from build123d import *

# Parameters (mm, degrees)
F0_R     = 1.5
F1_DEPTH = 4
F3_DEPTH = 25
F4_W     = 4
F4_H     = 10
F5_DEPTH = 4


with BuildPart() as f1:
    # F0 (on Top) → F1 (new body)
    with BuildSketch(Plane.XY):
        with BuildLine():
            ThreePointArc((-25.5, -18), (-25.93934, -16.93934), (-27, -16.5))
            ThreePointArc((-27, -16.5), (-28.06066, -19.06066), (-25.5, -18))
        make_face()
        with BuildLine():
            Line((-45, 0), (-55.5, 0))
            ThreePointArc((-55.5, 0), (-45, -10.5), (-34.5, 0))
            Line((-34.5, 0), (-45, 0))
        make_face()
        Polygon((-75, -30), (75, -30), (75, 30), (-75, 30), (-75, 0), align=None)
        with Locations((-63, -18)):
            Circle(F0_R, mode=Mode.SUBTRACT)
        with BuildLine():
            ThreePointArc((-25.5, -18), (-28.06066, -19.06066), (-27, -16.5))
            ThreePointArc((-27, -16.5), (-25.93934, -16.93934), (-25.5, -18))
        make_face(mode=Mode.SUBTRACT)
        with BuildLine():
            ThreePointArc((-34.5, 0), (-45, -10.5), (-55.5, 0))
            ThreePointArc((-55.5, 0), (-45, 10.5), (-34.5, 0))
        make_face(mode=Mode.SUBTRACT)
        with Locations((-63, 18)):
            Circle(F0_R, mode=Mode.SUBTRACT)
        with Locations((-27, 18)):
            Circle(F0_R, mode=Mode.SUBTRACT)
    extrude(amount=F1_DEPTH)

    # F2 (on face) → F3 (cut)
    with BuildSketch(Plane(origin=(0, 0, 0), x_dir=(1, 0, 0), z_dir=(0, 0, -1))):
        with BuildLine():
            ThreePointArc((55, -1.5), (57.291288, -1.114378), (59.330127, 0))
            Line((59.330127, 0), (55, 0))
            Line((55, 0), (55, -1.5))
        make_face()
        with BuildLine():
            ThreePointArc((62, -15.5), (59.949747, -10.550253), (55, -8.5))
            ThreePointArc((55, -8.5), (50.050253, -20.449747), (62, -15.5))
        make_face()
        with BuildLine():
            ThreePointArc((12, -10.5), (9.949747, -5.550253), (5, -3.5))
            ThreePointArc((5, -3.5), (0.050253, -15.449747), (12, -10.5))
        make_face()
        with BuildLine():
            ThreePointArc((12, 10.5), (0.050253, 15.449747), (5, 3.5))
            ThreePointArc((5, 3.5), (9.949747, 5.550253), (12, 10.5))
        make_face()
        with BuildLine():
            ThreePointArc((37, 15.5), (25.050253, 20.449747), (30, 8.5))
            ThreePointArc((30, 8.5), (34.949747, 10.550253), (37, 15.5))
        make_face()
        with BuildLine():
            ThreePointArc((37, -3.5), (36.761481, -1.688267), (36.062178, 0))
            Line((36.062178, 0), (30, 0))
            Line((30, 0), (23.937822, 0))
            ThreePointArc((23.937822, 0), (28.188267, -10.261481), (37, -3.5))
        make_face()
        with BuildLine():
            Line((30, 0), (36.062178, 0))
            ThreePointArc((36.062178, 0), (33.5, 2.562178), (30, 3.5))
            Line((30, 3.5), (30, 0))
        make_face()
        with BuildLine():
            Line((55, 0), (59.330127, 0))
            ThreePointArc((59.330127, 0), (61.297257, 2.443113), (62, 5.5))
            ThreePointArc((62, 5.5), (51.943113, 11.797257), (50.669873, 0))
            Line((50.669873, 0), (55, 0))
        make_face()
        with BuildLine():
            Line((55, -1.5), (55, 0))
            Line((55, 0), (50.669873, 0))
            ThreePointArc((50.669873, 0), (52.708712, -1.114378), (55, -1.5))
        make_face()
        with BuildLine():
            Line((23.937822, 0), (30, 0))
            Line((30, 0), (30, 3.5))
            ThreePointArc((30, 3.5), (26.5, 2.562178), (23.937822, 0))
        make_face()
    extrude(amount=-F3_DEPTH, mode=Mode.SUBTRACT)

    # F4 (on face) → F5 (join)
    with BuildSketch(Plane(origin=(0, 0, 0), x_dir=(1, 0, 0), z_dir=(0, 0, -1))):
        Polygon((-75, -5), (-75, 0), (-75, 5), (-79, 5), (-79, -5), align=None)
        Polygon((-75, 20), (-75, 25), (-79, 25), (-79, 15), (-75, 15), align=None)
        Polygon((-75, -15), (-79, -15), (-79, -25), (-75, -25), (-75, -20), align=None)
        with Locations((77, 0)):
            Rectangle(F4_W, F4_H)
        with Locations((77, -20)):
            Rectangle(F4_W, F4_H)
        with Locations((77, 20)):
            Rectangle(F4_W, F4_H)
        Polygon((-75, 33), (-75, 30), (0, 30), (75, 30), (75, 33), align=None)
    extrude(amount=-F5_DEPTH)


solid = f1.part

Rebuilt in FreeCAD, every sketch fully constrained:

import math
import FreeCAD as App
import Part
import Sketcher
Q = App.Units.Quantity


def add_polygon(sketch, points):
    """Adds a closed chain of lines whose ends are joined by coincident constraints."""
    first, n = sketch.GeometryCount, len(points)
    for a, b in zip(points, points[1:] + points[:1]):
        sketch.addGeometry(Part.LineSegment(App.Vector(*a, 0), App.Vector(*b, 0)), False)
    for i in range(n):
        sketch.addConstraint(Sketcher.Constraint("Coincident", first + i, 2, first + (i + 1) % n, 1))

doc = App.newDocument("Part")
params = doc.addObject("Spreadsheet::Sheet", "Params")
for row, (alias, value) in enumerate([
    ("sketch1_diameter", "3 mm"),
    ("sketch1_diameter2", "21 mm"),
    ("sketch1_width", "150 mm"),
    ("sketch1_height", "60 mm"),
    ("pad1_length", "4 mm"),
    ("sketch2_radius", "7 mm"),
    ("pocket1_length", "25 mm"),
    ("sketch3_width", "4 mm"),
    ("sketch3_width2", "150 mm"),
    ("sketch3_height", "10 mm"),
    ("sketch3_height2", "3 mm"),
    ("pad2_length", "4 mm"),
], start=1):
    params.set(f"A{row}", alias)
    params.set(f"B{row}", "=" + value)
    params.setAlias(f"B{row}", alias)

body = doc.addObject("PartDesign::Body", "Body")

# Sketch on XY plane
sketch1 = body.newObject("Sketcher::SketchObject", "Sketch")
sketch1.AttachmentSupport = (doc.getObject("XY_Plane"), [""])
sketch1.MapMode = "FlatFace"
add_polygon(sketch1, [(-75, -30), (75, -30), (75, 30), (-75, 30)])  # lines 0-3
sketch1.addGeometry(Part.Circle(App.Vector(-63, -18, 0), App.Vector(0, 0, 1), 1.5), False)  # 4
sketch1.addGeometry(Part.ArcOfCircle(Part.Circle(App.Vector(-27.000001, -18.000001, 0), App.Vector(0, 0, 1), 1.500001), math.radians(0.000022), math.radians(89.999978)), False)  # 5
sketch1.addGeometry(Part.ArcOfCircle(Part.Circle(App.Vector(-27, -18, 0), App.Vector(0, 0, 1), 1.5), math.radians(90.000004), math.radians(359.999996)), False)  # 6
sketch1.addGeometry(Part.Circle(App.Vector(-45, 0, 0), App.Vector(0, 0, 1), 10.5), False)  # 7
sketch1.addGeometry(Part.Circle(App.Vector(-63, 18, 0), App.Vector(0, 0, 1), 1.5), False)  # 8
sketch1.addGeometry(Part.Circle(App.Vector(-27, 18, 0), App.Vector(0, 0, 1), 1.5), False)  # 9
sketch1.addConstraint(Sketcher.Constraint("Tangent", 5, 1, 6, 2))
sketch1.addConstraint(Sketcher.Constraint("Coincident", 6, 1, 5, 2))
sketch1.addConstraint(Sketcher.Constraint("Horizontal", 0))
sketch1.addConstraint(Sketcher.Constraint("Vertical", 1))
sketch1.addConstraint(Sketcher.Constraint("Horizontal", 2))
sketch1.addConstraint(Sketcher.Constraint("Vertical", 3))
sketch1.addConstraint(Sketcher.Constraint("Equal", 4, 5))
sketch1.addConstraint(Sketcher.Constraint("Equal", 6, 8))
sketch1.addConstraint(Sketcher.Constraint("Equal", 8, 9))
sketch1.addConstraint(Sketcher.Constraint("Symmetric", 0, 2, 2, 2, -1, 1))
sketch1.addConstraint(Sketcher.Constraint("Symmetric", 4, 3, 8, 3, -1))
sketch1.addConstraint(Sketcher.Constraint("Symmetric", 5, 3, 9, 3, -1))
sketch1.addConstraint(Sketcher.Constraint("PointOnObject", 7, 3, -1))
sketch1.addConstraint(Sketcher.Constraint("Horizontal", 4, 3, 5, 3))
sketch1.addConstraint(Sketcher.Constraint("Horizontal", 6, 3, 5, 1))
sketch1.addConstraint(Sketcher.Constraint("Vertical", 9, 3, 6, 1))
sketch1.addConstraint(Sketcher.Constraint("Diameter", 4, Q("3 mm")))
sketch1.addConstraint(Sketcher.Constraint("Diameter", 7, Q("21 mm")))
sketch1.addConstraint(Sketcher.Constraint("DistanceX", 0, 1, 0, 2, Q("150 mm")))
sketch1.addConstraint(Sketcher.Constraint("DistanceY", 1, 1, 1, 2, Q("60 mm")))
sketch1.addConstraint(Sketcher.Constraint("DistanceX", 4, 3, -1, 1, Q("63 mm")))
sketch1.addConstraint(Sketcher.Constraint("DistanceY", 4, 3, -1, 1, Q("18 mm")))
sketch1.addConstraint(Sketcher.Constraint("DistanceX", 5, 3, -1, 1, Q("27.000001 mm")))
sketch1.addConstraint(Sketcher.Constraint("DistanceX", 7, 3, -1, 1, Q("45 mm")))
sketch1.setExpression("Constraints[20]", "Params.sketch1_diameter")
sketch1.setExpression("Constraints[21]", "Params.sketch1_diameter2")
sketch1.setExpression("Constraints[22]", "Params.sketch1_width")
sketch1.setExpression("Constraints[23]", "Params.sketch1_height")
pad1 = body.newObject("PartDesign::Pad", "Pad")
pad1.Profile = sketch1
pad1.setExpression("Length", "Params.pad1_length")

# Sketch on XY plane
sketch2 = body.newObject("Sketcher::SketchObject", "Sketch001")
sketch2.AttachmentSupport = (doc.getObject("XY_Plane"), [""])
sketch2.MapMode = "FlatFace"
sketch2.addGeometry(Part.ArcOfCircle(Part.Circle(App.Vector(54.999999, -5.500004, 0), App.Vector(0, 0, 1), 7.000004), math.radians(51.786799), math.radians(89.99999)), False)
sketch2.addGeometry(Part.ArcOfCircle(Part.Circle(App.Vector(55.000003, -5.499999, 0), App.Vector(0, 0, 1), 6.999997), math.radians(-0.00001), math.radians(51.7868)), False)
sketch2.addGeometry(Part.ArcOfCircle(Part.Circle(App.Vector(55, -5.5, 0), App.Vector(0, 0, 1), 7), math.radians(128.213209), math.radians(360.000001)), False)
sketch2.addGeometry(Part.ArcOfCircle(Part.Circle(App.Vector(55.000001, -5.500004, 0), App.Vector(0, 0, 1), 7.000004), math.radians(90.00001), math.radians(128.213201)), False)
sketch2.addGeometry(Part.ArcOfCircle(Part.Circle(App.Vector(54.999998, 15.500002, 0), App.Vector(0, 0, 1), 7.000002), math.radians(-89.999987), math.radians(-0.000013)), False)
sketch2.addGeometry(Part.ArcOfCircle(Part.Circle(App.Vector(55, 15.5, 0), App.Vector(0, 0, 1), 7), math.radians(0.000002), math.radians(269.999998)), False)
sketch2.addGeometry(Part.ArcOfCircle(Part.Circle(App.Vector(4.999998, 10.500002, 0), App.Vector(0, 0, 1), 7.000002), math.radians(-89.999987), math.radians(-0.000013)), False)
sketch2.addGeometry(Part.ArcOfCircle(Part.Circle(App.Vector(5, 10.5, 0), App.Vector(0, 0, 1), 7), math.radians(0.000002), math.radians(269.999998)), False)
sketch2.addGeometry(Part.ArcOfCircle(Part.Circle(App.Vector(5, -10.5, 0), App.Vector(0, 0, 1), 7), math.radians(90.000002), math.radians(359.999998)), False)
sketch2.addGeometry(Part.ArcOfCircle(Part.Circle(App.Vector(4.999998, -10.500002, 0), App.Vector(0, 0, 1), 7.000002), math.radians(0.000013), math.radians(89.999987)), False)
sketch2.addGeometry(Part.ArcOfCircle(Part.Circle(App.Vector(30, -15.5, 0), App.Vector(0, 0, 1), 7), math.radians(90.000002), math.radians(359.999998)), False)
sketch2.addGeometry(Part.ArcOfCircle(Part.Circle(App.Vector(29.999998, -15.500002, 0), App.Vector(0, 0, 1), 7.000002), math.radians(0.000013), math.radians(89.999987)), False)
sketch2.addGeometry(Part.ArcOfCircle(Part.Circle(App.Vector(30.000001, 3.499999, 0), App.Vector(0, 0, 1), 6.999999), math.radians(-30), math.radians(0.000006)), False)
sketch2.addGeometry(Part.ArcOfCircle(Part.Circle(App.Vector(30, 3.5, 0), App.Vector(0, 0, 1), 7), math.radians(-90.000003), math.radians(-29.999998)), False)
sketch2.addGeometry(Part.ArcOfCircle(Part.Circle(App.Vector(30, 3.5, 0), App.Vector(0, 0, 1), 7), math.radians(-150.000002), math.radians(-89.999997)), False)
sketch2.addGeometry(Part.ArcOfCircle(Part.Circle(App.Vector(30, 3.5, 0), App.Vector(0, 0, 1), 7), math.radians(0), math.radians(210)), False)
sketch2.addConstraint(Sketcher.Constraint("Tangent", 0, 1, 1, 2))
sketch2.addConstraint(Sketcher.Constraint("Tangent", 1, 1, 2, 2))
sketch2.addConstraint(Sketcher.Constraint("Tangent", 2, 1, 3, 2))
sketch2.addConstraint(Sketcher.Constraint("Tangent", 3, 1, 0, 2))
sketch2.addConstraint(Sketcher.Constraint("Tangent", 4, 1, 5, 2))
sketch2.addConstraint(Sketcher.Constraint("Coincident", 5, 1, 4, 2))
sketch2.addConstraint(Sketcher.Constraint("Tangent", 6, 1, 7, 2))
sketch2.addConstraint(Sketcher.Constraint("Coincident", 7, 1, 6, 2))
sketch2.addConstraint(Sketcher.Constraint("Tangent", 8, 1, 9, 2))
sketch2.addConstraint(Sketcher.Constraint("Coincident", 9, 1, 8, 2))
sketch2.addConstraint(Sketcher.Constraint("Tangent", 10, 1, 11, 2))
sketch2.addConstraint(Sketcher.Constraint("Coincident", 11, 1, 10, 2))
sketch2.addConstraint(Sketcher.Constraint("Tangent", 12, 1, 13, 2))
sketch2.addConstraint(Sketcher.Constraint("Tangent", 13, 1, 14, 2))
sketch2.addConstraint(Sketcher.Constraint("Tangent", 14, 1, 15, 2))
sketch2.addConstraint(Sketcher.Constraint("Tangent", 15, 1, 12, 2))
sketch2.addConstraint(Sketcher.Constraint("Equal", 0, 3))
sketch2.addConstraint(Sketcher.Constraint("Equal", 3, 4))
sketch2.addConstraint(Sketcher.Constraint("Equal", 5, 6))
sketch2.addConstraint(Sketcher.Constraint("Equal", 7, 8))
sketch2.addConstraint(Sketcher.Constraint("Equal", 9, 10))
sketch2.addConstraint(Sketcher.Constraint("Equal", 10, 12))
sketch2.addConstraint(Sketcher.Constraint("Equal", 12, 13))
sketch2.addConstraint(Sketcher.Constraint("Symmetric", 6, 3, 8, 3, -1))
sketch2.addConstraint(Sketcher.Constraint("PointOnObject", 0, 1, -1))
sketch2.addConstraint(Sketcher.Constraint("PointOnObject", 2, 1, -1))
sketch2.addConstraint(Sketcher.Constraint("PointOnObject", 12, 1, -1))
sketch2.addConstraint(Sketcher.Constraint("PointOnObject", 14, 1, -1))
sketch2.addConstraint(Sketcher.Constraint("Horizontal", 2, 3, 1, 1))
sketch2.addConstraint(Sketcher.Constraint("Horizontal", 4, 3, 5, 1))
sketch2.addConstraint(Sketcher.Constraint("Horizontal", 15, 3, 6, 1))
sketch2.addConstraint(Sketcher.Constraint("Horizontal", 6, 3, 7, 1))
sketch2.addConstraint(Sketcher.Constraint("Horizontal", 8, 3, 9, 1))
sketch2.addConstraint(Sketcher.Constraint("Horizontal", 10, 3, 11, 1))
sketch2.addConstraint(Sketcher.Constraint("Horizontal", 8, 1, 13, 1))
sketch2.addConstraint(Sketcher.Constraint("Horizontal", 6, 1, 15, 1))
sketch2.addConstraint(Sketcher.Constraint("Vertical", 2, 3, 4, 3))
sketch2.addConstraint(Sketcher.Constraint("Vertical", 10, 3, 12, 3))
sketch2.addConstraint(Sketcher.Constraint("Vertical", 5, 3, 3, 1))
sketch2.addConstraint(Sketcher.Constraint("Vertical", 3, 1, 4, 1))
sketch2.addConstraint(Sketcher.Constraint("Vertical", 9, 3, 6, 1))
sketch2.addConstraint(Sketcher.Constraint("Vertical", 6, 1, 8, 1))
sketch2.addConstraint(Sketcher.Constraint("Vertical", 15, 3, 10, 1))
sketch2.addConstraint(Sketcher.Constraint("Vertical", 10, 1, 13, 1))
sketch2.addConstraint(Sketcher.Constraint("Radius", 2, Q("7 mm")))
sketch2.addConstraint(Sketcher.Constraint("DistanceX", -1, 1, 0, 3, Q("54.999999 mm")))
sketch2.addConstraint(Sketcher.Constraint("DistanceX", -1, 1, 6, 3, Q("4.999998 mm")))
sketch2.addConstraint(Sketcher.Constraint("DistanceX", -1, 1, 10, 3, Q("30 mm")))
sketch2.addConstraint(Sketcher.Constraint("DistanceY", 1, 3, 4, 3, Q("21 mm")))
sketch2.addConstraint(Sketcher.Constraint("DistanceY", 6, 3, 4, 3, Q("5 mm")))
sketch2.addConstraint(Sketcher.Constraint("DistanceY", 10, 3, 8, 3, Q("5 mm")))
sketch2.setExpression("Constraints[44]", "Params.sketch2_radius")
pocket1 = body.newObject("PartDesign::Pocket", "Pocket")
pocket1.Profile = sketch2
pocket1.setExpression("Length", "Params.pocket1_length")
pocket1.Reversed = True

# Sketch on XY plane
sketch3 = body.newObject("Sketcher::SketchObject", "Sketch002")
sketch3.AttachmentSupport = (doc.getObject("XY_Plane"), [""])
sketch3.MapMode = "FlatFace"
add_polygon(sketch3, [(-75, 5), (-75, -5), (-79, -5), (-79, 5)])  # lines 0-3
add_polygon(sketch3, [(-75, -25), (-79, -25), (-79, -15), (-75, -15)])  # lines 4-7
add_polygon(sketch3, [(-75, 15), (-79, 15), (-79, 25), (-75, 25)])  # lines 8-11
add_polygon(sketch3, [(75, -5), (75, 5), (79, 5), (79, -5)])  # lines 12-15
add_polygon(sketch3, [(75, 15), (75, 25), (79, 25), (79, 15)])  # lines 16-19
add_polygon(sketch3, [(75, -25), (75, -15), (79, -15), (79, -25)])  # lines 20-23
add_polygon(sketch3, [(-75, -33), (-75, -30), (75, -30), (75, -33)])  # lines 24-27
sketch3.addConstraint(Sketcher.Constraint("Vertical", 0))
sketch3.addConstraint(Sketcher.Constraint("Horizontal", 1))
sketch3.addConstraint(Sketcher.Constraint("Vertical", 2))
sketch3.addConstraint(Sketcher.Constraint("Horizontal", 3))
sketch3.addConstraint(Sketcher.Constraint("Horizontal", 4))
sketch3.addConstraint(Sketcher.Constraint("Vertical", 5))
sketch3.addConstraint(Sketcher.Constraint("Horizontal", 6))
sketch3.addConstraint(Sketcher.Constraint("Vertical", 7))
sketch3.addConstraint(Sketcher.Constraint("Horizontal", 8))
sketch3.addConstraint(Sketcher.Constraint("Vertical", 9))
sketch3.addConstraint(Sketcher.Constraint("Horizontal", 10))
sketch3.addConstraint(Sketcher.Constraint("Vertical", 11))
sketch3.addConstraint(Sketcher.Constraint("Vertical", 12))
sketch3.addConstraint(Sketcher.Constraint("Horizontal", 13))
sketch3.addConstraint(Sketcher.Constraint("Vertical", 14))
sketch3.addConstraint(Sketcher.Constraint("Horizontal", 15))
sketch3.addConstraint(Sketcher.Constraint("Vertical", 16))
sketch3.addConstraint(Sketcher.Constraint("Horizontal", 17))
sketch3.addConstraint(Sketcher.Constraint("Vertical", 18))
sketch3.addConstraint(Sketcher.Constraint("Horizontal", 19))
sketch3.addConstraint(Sketcher.Constraint("Vertical", 20))
sketch3.addConstraint(Sketcher.Constraint("Horizontal", 21))
sketch3.addConstraint(Sketcher.Constraint("Vertical", 22))
sketch3.addConstraint(Sketcher.Constraint("Horizontal", 23))
sketch3.addConstraint(Sketcher.Constraint("Vertical", 24))
sketch3.addConstraint(Sketcher.Constraint("Horizontal", 25))
sketch3.addConstraint(Sketcher.Constraint("Vertical", 26))
sketch3.addConstraint(Sketcher.Constraint("Horizontal", 27))
sketch3.addConstraint(Sketcher.Constraint("Symmetric", 0, 2, 12, 2, -1, 1))
sketch3.addConstraint(Sketcher.Constraint("Symmetric", 2, 2, 14, 2, -1, 1))
sketch3.addConstraint(Sketcher.Constraint("Symmetric", 7, 2, 16, 2, -1, 1))
sketch3.addConstraint(Sketcher.Constraint("Symmetric", 5, 2, 18, 2, -1, 1))
sketch3.addConstraint(Sketcher.Constraint("Symmetric", 11, 2, 20, 2, -1, 1))
sketch3.addConstraint(Sketcher.Constraint("Symmetric", 9, 2, 22, 2, -1, 1))
sketch3.addConstraint(Sketcher.Constraint("Symmetric", 10, 2, 16, 2, -2))
sketch3.addConstraint(Sketcher.Constraint("Symmetric", 8, 2, 18, 2, -2))
sketch3.addConstraint(Sketcher.Constraint("Horizontal", 3, 2, 12, 2))
sketch3.addConstraint(Sketcher.Constraint("Vertical", 2, 2, 4, 2))
sketch3.addConstraint(Sketcher.Constraint("Vertical", 3, 2, 6, 2))
sketch3.addConstraint(Sketcher.Constraint("Vertical", 11, 2, 24, 2))
sketch3.addConstraint(Sketcher.Constraint("Vertical", 23, 2, 25, 2))
sketch3.addConstraint(Sketcher.Constraint("Equal", 2, 5))
sketch3.addConstraint(Sketcher.Constraint("DistanceX", 1, 2, 1, 1, Q("4 mm")))
sketch3.addConstraint(Sketcher.Constraint("DistanceX", 25, 1, 25, 2, Q("150 mm")))
sketch3.addConstraint(Sketcher.Constraint("DistanceY", 0, 2, 0, 1, Q("10 mm")))
sketch3.addConstraint(Sketcher.Constraint("DistanceY", 24, 1, 24, 2, Q("3 mm")))
sketch3.addConstraint(Sketcher.Constraint("DistanceY", 4, 2, -1, 1, Q("25 mm")))
sketch3.addConstraint(Sketcher.Constraint("DistanceY", 24, 2, -1, 1, Q("30 mm")))
sketch3.setExpression("Constraints[70]", "Params.sketch3_width")
sketch3.setExpression("Constraints[71]", "Params.sketch3_width2")
sketch3.setExpression("Constraints[72]", "Params.sketch3_height")
sketch3.setExpression("Constraints[73]", "Params.sketch3_height2")
pad2 = body.newObject("PartDesign::Pad", "Pad001")
pad2.Profile = sketch3
pad2.setExpression("Length", "Params.pad2_length")

doc.recompute()
